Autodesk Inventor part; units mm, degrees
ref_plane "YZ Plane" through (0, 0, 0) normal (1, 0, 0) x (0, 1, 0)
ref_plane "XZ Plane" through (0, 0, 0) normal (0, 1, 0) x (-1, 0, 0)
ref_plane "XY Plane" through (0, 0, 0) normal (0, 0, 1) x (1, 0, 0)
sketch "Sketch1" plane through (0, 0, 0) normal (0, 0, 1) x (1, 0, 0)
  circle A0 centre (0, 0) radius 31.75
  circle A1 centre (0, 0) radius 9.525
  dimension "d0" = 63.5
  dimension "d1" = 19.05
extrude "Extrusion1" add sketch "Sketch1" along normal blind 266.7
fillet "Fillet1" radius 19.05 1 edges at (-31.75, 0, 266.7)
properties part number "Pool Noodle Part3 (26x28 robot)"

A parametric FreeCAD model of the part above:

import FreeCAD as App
import Part
import Sketcher
Q = App.Units.Quantity


def edges_at(feature, points):
    """Names of the edges that pass closest to the given points."""
    edges = feature.Shape.Edges
    near = lambda p: min(range(len(edges)), key=lambda i: edges[i].distToShape(Part.Vertex(*p))[0])
    return sorted({f"Edge{near(p) + 1}" for p in points})

doc = App.newDocument("Part")
body = doc.addObject("PartDesign::Body", "Body")

# Sketch on XY plane
sketch1 = body.newObject("Sketcher::SketchObject", "Sketch")
sketch1.AttachmentSupport = (doc.getObject("XY_Plane"), [""])
sketch1.MapMode = "FlatFace"
sketch1.addGeometry([
    Part.Circle(App.Vector(0, 0, 0), App.Vector(0, 0, 1), 32),
    Part.Circle(App.Vector(0, 0, 0), App.Vector(0, 0, 1), 10),
], False)
sketch1.addConstraint([
    Sketcher.Constraint("Coincident", 0, 3, -1, 1),
    Sketcher.Constraint("Coincident", 1, 3, -1, 1),
    Sketcher.Constraint("Diameter", 0, Q("2.5 in")),
    Sketcher.Constraint("Diameter", 1, Q("0.75 in")),
])
pad1 = body.newObject("PartDesign::Pad", "Pad")
pad1.Profile = sketch1
pad1.Length = Q("10.5 in")
doc.recompute()

fillet = body.newObject("PartDesign::Fillet", "Fillet")
fillet.Base = (pad1, edges_at(pad1, [(-31.75, 0, 266.7)]))
fillet.Radius = Q("0.75 in")

doc.recompute()
